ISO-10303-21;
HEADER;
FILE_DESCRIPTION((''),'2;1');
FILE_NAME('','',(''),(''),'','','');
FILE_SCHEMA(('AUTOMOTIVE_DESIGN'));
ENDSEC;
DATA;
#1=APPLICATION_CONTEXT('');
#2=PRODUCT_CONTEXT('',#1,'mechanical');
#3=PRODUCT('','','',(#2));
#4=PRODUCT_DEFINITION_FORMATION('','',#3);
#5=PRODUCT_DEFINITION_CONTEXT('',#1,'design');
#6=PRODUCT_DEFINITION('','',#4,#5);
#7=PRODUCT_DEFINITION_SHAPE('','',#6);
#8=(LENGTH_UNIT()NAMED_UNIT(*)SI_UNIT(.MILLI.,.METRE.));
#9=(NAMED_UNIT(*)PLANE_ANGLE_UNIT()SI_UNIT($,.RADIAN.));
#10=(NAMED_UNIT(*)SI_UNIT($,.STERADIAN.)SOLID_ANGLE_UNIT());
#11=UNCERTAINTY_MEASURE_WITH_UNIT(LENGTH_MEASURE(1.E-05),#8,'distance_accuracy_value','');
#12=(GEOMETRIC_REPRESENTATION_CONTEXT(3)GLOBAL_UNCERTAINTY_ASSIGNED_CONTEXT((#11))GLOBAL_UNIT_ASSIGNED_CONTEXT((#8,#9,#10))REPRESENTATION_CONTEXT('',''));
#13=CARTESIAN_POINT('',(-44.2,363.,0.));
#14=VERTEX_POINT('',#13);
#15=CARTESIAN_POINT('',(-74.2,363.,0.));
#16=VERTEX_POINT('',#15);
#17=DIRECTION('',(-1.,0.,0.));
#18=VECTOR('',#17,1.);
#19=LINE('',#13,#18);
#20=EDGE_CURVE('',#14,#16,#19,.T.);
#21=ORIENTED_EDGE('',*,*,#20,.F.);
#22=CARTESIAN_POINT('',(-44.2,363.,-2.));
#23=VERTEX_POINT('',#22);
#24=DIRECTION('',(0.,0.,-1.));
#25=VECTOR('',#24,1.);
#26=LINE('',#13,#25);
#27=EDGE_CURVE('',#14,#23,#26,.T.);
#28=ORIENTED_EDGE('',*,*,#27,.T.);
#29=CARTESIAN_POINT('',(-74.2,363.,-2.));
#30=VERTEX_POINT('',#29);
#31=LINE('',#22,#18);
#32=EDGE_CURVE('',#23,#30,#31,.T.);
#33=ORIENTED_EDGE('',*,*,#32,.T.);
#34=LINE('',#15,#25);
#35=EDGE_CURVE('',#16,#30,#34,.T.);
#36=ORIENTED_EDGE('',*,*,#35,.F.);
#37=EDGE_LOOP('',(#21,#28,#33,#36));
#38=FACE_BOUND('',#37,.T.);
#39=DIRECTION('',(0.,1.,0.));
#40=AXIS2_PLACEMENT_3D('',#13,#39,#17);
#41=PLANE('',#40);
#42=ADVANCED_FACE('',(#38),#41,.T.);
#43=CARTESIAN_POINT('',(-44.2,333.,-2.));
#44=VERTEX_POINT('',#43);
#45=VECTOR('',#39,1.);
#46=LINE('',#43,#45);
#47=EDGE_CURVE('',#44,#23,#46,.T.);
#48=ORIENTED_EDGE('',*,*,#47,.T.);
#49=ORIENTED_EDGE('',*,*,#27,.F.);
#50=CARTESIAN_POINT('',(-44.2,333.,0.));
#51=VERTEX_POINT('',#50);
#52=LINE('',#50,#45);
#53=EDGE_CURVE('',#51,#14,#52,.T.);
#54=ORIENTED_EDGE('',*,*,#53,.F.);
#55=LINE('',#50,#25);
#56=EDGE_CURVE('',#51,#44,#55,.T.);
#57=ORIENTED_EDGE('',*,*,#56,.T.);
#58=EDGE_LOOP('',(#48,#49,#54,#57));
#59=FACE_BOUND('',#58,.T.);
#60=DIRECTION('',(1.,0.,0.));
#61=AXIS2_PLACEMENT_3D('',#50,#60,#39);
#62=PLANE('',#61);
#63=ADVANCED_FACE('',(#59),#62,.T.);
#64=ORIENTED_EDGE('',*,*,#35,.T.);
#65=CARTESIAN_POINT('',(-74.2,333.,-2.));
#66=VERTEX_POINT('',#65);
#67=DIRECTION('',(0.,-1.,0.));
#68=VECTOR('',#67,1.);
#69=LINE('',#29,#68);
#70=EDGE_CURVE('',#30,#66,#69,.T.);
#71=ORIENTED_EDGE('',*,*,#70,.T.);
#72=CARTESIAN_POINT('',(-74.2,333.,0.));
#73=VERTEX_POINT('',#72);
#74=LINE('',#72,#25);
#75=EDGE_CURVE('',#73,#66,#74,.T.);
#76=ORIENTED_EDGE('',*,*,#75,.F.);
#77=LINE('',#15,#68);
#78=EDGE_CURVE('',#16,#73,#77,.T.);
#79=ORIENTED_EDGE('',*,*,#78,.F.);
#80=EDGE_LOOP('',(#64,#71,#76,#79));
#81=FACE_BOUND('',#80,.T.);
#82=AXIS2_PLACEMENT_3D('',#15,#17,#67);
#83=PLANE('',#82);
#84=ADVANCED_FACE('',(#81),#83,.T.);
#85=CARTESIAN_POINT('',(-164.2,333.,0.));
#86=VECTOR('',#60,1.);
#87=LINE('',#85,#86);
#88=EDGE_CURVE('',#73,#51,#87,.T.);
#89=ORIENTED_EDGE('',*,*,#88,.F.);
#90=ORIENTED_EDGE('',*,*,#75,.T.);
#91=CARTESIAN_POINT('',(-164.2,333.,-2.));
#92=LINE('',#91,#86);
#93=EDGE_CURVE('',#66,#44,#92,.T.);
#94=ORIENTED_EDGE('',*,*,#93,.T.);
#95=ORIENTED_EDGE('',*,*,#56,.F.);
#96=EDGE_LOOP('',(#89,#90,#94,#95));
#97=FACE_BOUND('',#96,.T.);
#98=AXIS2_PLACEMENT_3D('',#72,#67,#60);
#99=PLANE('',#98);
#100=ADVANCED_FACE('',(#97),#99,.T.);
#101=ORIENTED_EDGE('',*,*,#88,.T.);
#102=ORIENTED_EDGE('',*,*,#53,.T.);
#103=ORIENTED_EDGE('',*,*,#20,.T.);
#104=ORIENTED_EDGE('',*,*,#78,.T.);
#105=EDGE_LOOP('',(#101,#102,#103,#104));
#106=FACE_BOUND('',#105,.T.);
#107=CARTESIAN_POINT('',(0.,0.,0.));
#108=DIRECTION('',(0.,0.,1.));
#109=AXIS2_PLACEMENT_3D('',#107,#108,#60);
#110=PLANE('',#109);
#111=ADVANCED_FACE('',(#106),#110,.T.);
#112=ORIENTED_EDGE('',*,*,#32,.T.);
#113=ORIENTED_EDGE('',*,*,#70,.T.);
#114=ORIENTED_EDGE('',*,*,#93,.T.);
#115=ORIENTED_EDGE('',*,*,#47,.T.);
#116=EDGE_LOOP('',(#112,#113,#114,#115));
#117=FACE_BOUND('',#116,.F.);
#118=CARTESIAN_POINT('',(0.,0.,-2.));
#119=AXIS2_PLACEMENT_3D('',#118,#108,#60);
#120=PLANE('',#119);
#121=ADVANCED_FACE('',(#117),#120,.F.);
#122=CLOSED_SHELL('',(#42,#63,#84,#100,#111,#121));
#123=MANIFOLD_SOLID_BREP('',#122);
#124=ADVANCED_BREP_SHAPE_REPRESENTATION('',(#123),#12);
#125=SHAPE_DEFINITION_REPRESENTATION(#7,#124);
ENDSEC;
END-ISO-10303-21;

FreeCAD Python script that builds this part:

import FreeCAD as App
import Part
import Sketcher

V = App.Vector
Q = App.Units.Quantity


def add_polygon(sketch, points):
    """Adds a closed chain of lines whose ends are joined by coincident constraints."""
    first, n = sketch.GeometryCount, len(points)
    for a, b in zip(points, points[1:] + points[:1]):
        sketch.addGeometry(Part.LineSegment(App.Vector(*a, 0), App.Vector(*b, 0)), False)
    for i in range(n):
        sketch.addConstraint(Sketcher.Constraint("Coincident", first + i, 2, first + (i + 1) % n, 1))

doc = App.newDocument("Part")
body = doc.addObject("PartDesign::Body", "Body")

sketch1 = body.newObject("Sketcher::SketchObject", "Sketch")
sketch1.AttachmentSupport = (doc.getObject("XY_Plane"), [""])
sketch1.MapMode = "FlatFace"
add_polygon(sketch1, [(-74, 363), (-74, 333), (-44, 333), (-44, 363)])
sketch1.addConstraint(Sketcher.Constraint("Vertical", 0))
sketch1.addConstraint(Sketcher.Constraint("Horizontal", 1))
sketch1.addConstraint(Sketcher.Constraint("Vertical", 2))
sketch1.addConstraint(Sketcher.Constraint("Horizontal", 3))
sketch1.addConstraint(Sketcher.Constraint("Equal", 3, 0))
sketch1.addConstraint(Sketcher.Constraint("DistanceX", 1, 1, 1, 2, Q("30 mm")))
sketch1.addConstraint(Sketcher.Constraint("DistanceY", -1, 1, 0, 2, Q("333 mm")))
sketch1.addConstraint(Sketcher.Constraint("DistanceX", 0, 2, -1, 1, Q("74.2 mm")))
pad1 = body.newObject("PartDesign::Pad", "Pad")
pad1.Profile = sketch1
pad1.Length = 2
pad1.Reversed = True

doc.recompute()
